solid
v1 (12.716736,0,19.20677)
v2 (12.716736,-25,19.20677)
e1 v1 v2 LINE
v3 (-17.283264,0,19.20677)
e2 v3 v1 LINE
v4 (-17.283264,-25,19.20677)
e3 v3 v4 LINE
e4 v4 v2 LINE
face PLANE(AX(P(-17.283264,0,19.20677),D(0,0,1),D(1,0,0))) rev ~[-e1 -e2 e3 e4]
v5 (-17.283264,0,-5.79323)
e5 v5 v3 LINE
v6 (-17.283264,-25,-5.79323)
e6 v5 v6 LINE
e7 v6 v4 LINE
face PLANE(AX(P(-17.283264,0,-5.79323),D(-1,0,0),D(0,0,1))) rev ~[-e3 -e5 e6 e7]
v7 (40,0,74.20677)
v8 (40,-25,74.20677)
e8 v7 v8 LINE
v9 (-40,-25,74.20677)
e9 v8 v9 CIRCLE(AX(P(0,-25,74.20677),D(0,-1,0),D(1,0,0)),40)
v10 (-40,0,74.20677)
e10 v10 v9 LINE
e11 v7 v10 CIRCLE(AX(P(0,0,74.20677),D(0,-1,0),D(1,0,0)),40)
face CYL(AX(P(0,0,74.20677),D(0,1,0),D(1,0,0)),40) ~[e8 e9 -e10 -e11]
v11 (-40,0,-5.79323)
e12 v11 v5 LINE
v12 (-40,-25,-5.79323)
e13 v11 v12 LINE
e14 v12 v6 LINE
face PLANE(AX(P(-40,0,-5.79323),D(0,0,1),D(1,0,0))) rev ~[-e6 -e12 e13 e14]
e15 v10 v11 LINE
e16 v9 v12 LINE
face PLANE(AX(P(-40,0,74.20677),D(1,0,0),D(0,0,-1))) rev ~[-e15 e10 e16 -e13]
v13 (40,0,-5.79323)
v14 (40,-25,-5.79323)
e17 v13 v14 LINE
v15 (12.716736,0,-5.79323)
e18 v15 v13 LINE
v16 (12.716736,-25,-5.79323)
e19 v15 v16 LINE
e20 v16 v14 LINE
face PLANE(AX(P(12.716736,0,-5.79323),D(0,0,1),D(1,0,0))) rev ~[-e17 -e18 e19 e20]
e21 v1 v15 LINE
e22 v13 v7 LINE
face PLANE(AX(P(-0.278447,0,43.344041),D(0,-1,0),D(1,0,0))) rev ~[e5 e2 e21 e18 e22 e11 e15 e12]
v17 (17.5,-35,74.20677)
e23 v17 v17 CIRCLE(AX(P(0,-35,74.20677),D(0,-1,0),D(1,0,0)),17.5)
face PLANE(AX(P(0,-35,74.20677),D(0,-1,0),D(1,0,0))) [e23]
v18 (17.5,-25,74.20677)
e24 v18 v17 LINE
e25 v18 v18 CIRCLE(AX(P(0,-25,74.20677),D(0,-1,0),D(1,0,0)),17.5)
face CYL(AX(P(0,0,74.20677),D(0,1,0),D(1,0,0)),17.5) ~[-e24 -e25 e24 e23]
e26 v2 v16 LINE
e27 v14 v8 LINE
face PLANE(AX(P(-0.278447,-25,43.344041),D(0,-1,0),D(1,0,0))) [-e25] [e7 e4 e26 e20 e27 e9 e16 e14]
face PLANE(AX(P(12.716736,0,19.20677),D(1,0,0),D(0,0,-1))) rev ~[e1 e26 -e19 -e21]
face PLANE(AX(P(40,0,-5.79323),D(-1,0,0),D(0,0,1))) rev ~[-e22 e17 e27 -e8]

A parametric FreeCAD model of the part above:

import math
import FreeCAD as App
import Part
import Sketcher
from FreeCAD import Vector
Q = App.Units.Quantity

doc = App.newDocument("Part")
params = doc.addObject("Spreadsheet::Sheet", "Params")
for row, (alias, value) in enumerate([
    ("sketch1_diameter", "35 mm"),
    ("pad1_length", "35 mm"),
    ("sketch2_diameter", "35 mm"),
    ("sketch2_radius", "40 mm"),
    ("sketch2_width", "30 mm"),
    ("sketch2_height", "80 mm"),
    ("sketch2_height2", "25 mm"),
    ("pad2_length", "25 mm"),
], start=1):
    params.set(f"A{row}", alias)
    params.set(f"B{row}", "=" + value)
    params.setAlias(f"B{row}", alias)

body = doc.addObject("PartDesign::Body", "Body")

sketch1 = body.newObject("Sketcher::SketchObject", "Sketch")
sketch1.AttachmentSupport = (doc.getObject("XZ_Plane"), [""])
sketch1.MapMode = "FlatFace"
sketch1.addGeometry(Part.Circle(Vector(0, 74.20677, 0), Vector(0, 0, 1), 17.5), False)
sketch1.addConstraint([
    Sketcher.Constraint("PointOnObject", 0, 3, -2),
    Sketcher.Constraint("Diameter", 0, Q("35 mm")),
    Sketcher.Constraint("DistanceY", -1, 1, 0, 3, Q("74.20677 mm")),
])
sketch1.setExpression("Constraints[1]", "Params.sketch1_diameter")
pad1 = body.newObject("PartDesign::Pad", "Pad")
pad1.Profile = sketch1
pad1.setExpression("Length", "Params.pad1_length")

sketch2 = body.newObject("Sketcher::SketchObject", "Sketch001")
sketch2.AttachmentSupport = (doc.getObject("XZ_Plane"), [""])
sketch2.MapMode = "FlatFace"
sketch2.addGeometry([
    Part.LineSegment(Vector(-40, 74.20677, 0), Vector(-40, -5.79323, 0)),
    Part.LineSegment(Vector(-40, -5.79323, 0), Vector(-17.283264, -5.79323, 0)),
    Part.LineSegment(Vector(-17.283264, -5.79323, 0), Vector(-17.283264, 19.20677, 0)),
    Part.LineSegment(Vector(-17.283264, 19.20677, 0), Vector(12.716736, 19.20677, 0)),
    Part.LineSegment(Vector(12.716736, 19.20677, 0), Vector(12.716736, -5.79323, 0)),
    Part.LineSegment(Vector(12.716736, -5.79323, 0), Vector(40, -5.79323, 0)),
    Part.LineSegment(Vector(40, -5.79323, 0), Vector(40, 74.20677, 0)),
    Part.ArcOfCircle(Part.Circle(Vector(0, 74.20677, 0), Vector(0, 0, 1), 40), math.radians(0), math.radians(180)),
    Part.Circle(Vector(0, 74.20677, 0), Vector(0, 0, 1), 17.5),
], False)
sketch2.addConstraint([
    Sketcher.Constraint("Coincident", 0, 2, 1, 1),
    Sketcher.Constraint("Coincident", 1, 2, 2, 1),
    Sketcher.Constraint("Coincident", 2, 2, 3, 1),
    Sketcher.Constraint("Coincident", 3, 2, 4, 1),
    Sketcher.Constraint("Coincident", 4, 2, 5, 1),
    Sketcher.Constraint("Coincident", 5, 2, 6, 1),
    Sketcher.Constraint("Tangent", 6, 2, 7, 1),
    Sketcher.Constraint("Tangent", 7, 2, 0, 1),
    Sketcher.Constraint("Vertical", 0),
    Sketcher.Constraint("Horizontal", 1),
    Sketcher.Constraint("Vertical", 2),
    Sketcher.Constraint("Horizontal", 3),
    Sketcher.Constraint("Vertical", 4),
    Sketcher.Constraint("Horizontal", 5),
    Sketcher.Constraint("Vertical", 6),
    Sketcher.Constraint("Coincident", 8, 3, 7, 3),
    Sketcher.Constraint("Symmetric", 0, 2, 5, 2, -2),
    Sketcher.Constraint("Diameter", 8, Q("35 mm")),
    Sketcher.Constraint("Radius", 7, Q("40 mm")),
    Sketcher.Constraint("DistanceX", 3, 1, 3, 2, Q("30 mm")),
    Sketcher.Constraint("DistanceY", 0, 2, 0, 1, Q("80 mm")),
    Sketcher.Constraint("DistanceY", 2, 1, 2, 2, Q("25 mm")),
    Sketcher.Constraint("DistanceX", 1, 1, 1, 2, Q("22.716736 mm")),
    Sketcher.Constraint("DistanceY", -1, 1, 7, 3, Q("74.20677 mm")),
])
sketch2.setExpression("Constraints[17]", "Params.sketch2_diameter")
sketch2.setExpression("Constraints[18]", "Params.sketch2_radius")
sketch2.setExpression("Constraints[19]", "Params.sketch2_width")
sketch2.setExpression("Constraints[20]", "Params.sketch2_height")
sketch2.setExpression("Constraints[21]", "Params.sketch2_height2")
pad2 = body.newObject("PartDesign::Pad", "Pad001")
pad2.Profile = sketch2
pad2.setExpression("Length", "Params.pad2_length")

doc.recompute()
